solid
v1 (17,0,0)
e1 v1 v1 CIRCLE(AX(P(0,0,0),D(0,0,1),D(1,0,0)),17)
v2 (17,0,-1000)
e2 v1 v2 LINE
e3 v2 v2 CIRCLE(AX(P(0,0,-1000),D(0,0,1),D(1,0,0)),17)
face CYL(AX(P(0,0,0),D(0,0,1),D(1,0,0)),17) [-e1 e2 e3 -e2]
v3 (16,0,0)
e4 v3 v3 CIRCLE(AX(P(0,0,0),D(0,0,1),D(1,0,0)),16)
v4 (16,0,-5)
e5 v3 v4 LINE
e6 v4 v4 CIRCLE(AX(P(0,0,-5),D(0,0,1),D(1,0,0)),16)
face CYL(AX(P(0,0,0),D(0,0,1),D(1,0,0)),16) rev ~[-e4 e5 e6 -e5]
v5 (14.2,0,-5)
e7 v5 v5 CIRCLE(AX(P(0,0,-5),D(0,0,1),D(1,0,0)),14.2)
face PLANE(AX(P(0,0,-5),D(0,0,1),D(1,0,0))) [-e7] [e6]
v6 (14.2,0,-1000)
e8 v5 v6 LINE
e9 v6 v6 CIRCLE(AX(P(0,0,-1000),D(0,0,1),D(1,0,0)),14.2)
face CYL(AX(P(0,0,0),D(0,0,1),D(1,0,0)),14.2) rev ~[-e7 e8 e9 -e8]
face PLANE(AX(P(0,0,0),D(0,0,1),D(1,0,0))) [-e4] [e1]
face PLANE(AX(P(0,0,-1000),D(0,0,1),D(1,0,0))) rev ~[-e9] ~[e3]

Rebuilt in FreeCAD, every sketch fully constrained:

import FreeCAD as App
import Part
import Sketcher
Q = App.Units.Quantity

doc = App.newDocument("Part")
body = doc.addObject("PartDesign::Body", "Body")

# Sketch on XY plane
sketch1 = body.newObject("Sketcher::SketchObject", "Sketch")
sketch1.AttachmentSupport = (doc.getObject("XY_Plane"), [""])
sketch1.MapMode = "FlatFace"
sketch1.addGeometry(Part.Circle(App.Vector(0, 0, 0), App.Vector(0, 0, 1), 17), False)
sketch1.addGeometry(Part.Circle(App.Vector(0, 0, 0), App.Vector(0, 0, 1), 14), False)
sketch1.addConstraint(Sketcher.Constraint("Coincident", 0, 3, -1, 1))
sketch1.addConstraint(Sketcher.Constraint("Coincident", 1, 3, -1, 1))
sketch1.addConstraint(Sketcher.Constraint("Diameter", 0, Q("34 mm")))
sketch1.addConstraint(Sketcher.Constraint("Diameter", 1, Q("28.4 mm")))
pad1 = body.newObject("PartDesign::Pad", "Pad")
pad1.Profile = sketch1
pad1.Length = 1000
pad1.Reversed = True

# Sketch on XY plane
sketch2 = body.newObject("Sketcher::SketchObject", "Sketch001")
sketch2.AttachmentSupport = (doc.getObject("XY_Plane"), [""])
sketch2.MapMode = "FlatFace"
sketch2.addGeometry(Part.Circle(App.Vector(0, 0, 0), App.Vector(0, 0, 1), 16), False)
sketch2.addConstraint(Sketcher.Constraint("Coincident", 0, 3, -1, 1))
sketch2.addConstraint(Sketcher.Constraint("Diameter", 0, Q("32 mm")))
pocket1 = body.newObject("PartDesign::Pocket", "Pocket")
pocket1.Profile = sketch2
pocket1.Length = 5

doc.recompute()
